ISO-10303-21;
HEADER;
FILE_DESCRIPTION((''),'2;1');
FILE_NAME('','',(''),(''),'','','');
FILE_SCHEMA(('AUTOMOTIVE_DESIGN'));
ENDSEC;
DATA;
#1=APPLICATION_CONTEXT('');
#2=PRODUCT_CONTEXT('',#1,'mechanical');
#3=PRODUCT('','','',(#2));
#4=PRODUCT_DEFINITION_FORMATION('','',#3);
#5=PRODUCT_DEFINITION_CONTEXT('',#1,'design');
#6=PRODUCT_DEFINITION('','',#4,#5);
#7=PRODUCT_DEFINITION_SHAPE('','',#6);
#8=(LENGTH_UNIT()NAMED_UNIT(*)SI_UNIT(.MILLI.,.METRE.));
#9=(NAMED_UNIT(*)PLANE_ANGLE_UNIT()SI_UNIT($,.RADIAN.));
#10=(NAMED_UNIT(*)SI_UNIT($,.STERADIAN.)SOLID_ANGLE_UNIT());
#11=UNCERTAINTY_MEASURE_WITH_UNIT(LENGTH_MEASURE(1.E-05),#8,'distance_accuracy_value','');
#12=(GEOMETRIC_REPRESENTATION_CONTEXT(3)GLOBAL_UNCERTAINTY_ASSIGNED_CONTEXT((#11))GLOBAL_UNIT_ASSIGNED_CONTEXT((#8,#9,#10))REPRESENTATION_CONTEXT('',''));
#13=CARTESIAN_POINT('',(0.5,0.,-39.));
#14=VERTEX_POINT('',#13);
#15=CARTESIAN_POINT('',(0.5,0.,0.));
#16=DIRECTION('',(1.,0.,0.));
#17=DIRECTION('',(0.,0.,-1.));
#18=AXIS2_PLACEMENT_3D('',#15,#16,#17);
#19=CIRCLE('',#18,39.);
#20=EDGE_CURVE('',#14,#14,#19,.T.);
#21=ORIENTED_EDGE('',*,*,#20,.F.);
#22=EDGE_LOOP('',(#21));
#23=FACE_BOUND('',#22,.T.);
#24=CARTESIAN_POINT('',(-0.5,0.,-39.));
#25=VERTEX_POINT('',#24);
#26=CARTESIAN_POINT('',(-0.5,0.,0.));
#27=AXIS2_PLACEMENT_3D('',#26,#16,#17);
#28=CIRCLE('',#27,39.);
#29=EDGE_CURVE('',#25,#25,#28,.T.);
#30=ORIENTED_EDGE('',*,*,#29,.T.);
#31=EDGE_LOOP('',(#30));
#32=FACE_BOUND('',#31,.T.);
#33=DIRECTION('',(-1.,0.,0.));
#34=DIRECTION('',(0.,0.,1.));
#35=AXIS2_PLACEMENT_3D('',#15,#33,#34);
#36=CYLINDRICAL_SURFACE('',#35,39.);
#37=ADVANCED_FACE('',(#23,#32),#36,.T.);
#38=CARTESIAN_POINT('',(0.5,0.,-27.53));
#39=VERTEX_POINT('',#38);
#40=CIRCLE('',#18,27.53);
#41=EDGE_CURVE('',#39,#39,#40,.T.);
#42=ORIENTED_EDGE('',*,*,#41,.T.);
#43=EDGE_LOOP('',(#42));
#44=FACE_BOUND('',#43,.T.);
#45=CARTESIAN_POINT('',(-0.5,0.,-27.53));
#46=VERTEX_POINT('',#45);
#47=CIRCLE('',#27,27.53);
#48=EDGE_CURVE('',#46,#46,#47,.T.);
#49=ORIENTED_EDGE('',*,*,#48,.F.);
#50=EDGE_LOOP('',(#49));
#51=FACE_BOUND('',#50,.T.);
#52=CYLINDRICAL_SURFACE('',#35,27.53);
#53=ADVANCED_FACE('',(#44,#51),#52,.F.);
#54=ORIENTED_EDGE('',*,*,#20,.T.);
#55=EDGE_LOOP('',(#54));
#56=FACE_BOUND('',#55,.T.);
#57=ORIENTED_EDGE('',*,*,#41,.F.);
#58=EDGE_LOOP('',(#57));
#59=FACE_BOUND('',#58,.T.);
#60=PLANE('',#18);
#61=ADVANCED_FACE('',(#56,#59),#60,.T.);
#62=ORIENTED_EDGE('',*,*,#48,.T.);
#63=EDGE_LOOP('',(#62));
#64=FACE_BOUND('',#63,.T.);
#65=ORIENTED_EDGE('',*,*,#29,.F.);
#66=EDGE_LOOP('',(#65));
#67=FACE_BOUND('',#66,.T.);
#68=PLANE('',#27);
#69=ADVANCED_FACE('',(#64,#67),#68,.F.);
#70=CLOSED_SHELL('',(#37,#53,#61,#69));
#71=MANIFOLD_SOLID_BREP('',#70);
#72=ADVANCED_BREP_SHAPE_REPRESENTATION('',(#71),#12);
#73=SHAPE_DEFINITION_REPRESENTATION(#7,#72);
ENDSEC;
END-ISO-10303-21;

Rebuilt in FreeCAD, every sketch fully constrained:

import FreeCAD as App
import Part
import Sketcher
from FreeCAD import Vector

doc = App.newDocument("Part")
body = doc.addObject("PartDesign::Body", "Body")

# Sketch on YZ plane
sketch1 = doc.addObject("Sketcher::SketchObject", "Sketch")
body.addObject(sketch1)
sketch1.AttachmentSupport = (doc.YZ_Plane, [""])
sketch1.MapMode = "FlatFace"
sketch1.addGeometry(Part.Circle(Vector(0, 0, 0), Vector(0, 0, 1), 39), False)
sketch1.addGeometry(Part.Circle(Vector(0, 0, 0), Vector(0, 0, 1), 27.53), False)
sketch1.addConstraint(Sketcher.Constraint("Coincident", 0, 3, -1, 1))
sketch1.addConstraint(Sketcher.Constraint("Coincident", 1, 3, -1, 1))
sketch1.addConstraint(Sketcher.Constraint("Diameter", 0, 78.0))
sketch1.addConstraint(Sketcher.Constraint("Diameter", 1, 55.06))
pad1 = doc.addObject("PartDesign::Pad", "Pad")
body.addObject(pad1)
pad1.Profile = sketch1
pad1.Type = "TwoLengths"
pad1.Length = 0.5
pad1.Length2 = 0.5

doc.recompute()
